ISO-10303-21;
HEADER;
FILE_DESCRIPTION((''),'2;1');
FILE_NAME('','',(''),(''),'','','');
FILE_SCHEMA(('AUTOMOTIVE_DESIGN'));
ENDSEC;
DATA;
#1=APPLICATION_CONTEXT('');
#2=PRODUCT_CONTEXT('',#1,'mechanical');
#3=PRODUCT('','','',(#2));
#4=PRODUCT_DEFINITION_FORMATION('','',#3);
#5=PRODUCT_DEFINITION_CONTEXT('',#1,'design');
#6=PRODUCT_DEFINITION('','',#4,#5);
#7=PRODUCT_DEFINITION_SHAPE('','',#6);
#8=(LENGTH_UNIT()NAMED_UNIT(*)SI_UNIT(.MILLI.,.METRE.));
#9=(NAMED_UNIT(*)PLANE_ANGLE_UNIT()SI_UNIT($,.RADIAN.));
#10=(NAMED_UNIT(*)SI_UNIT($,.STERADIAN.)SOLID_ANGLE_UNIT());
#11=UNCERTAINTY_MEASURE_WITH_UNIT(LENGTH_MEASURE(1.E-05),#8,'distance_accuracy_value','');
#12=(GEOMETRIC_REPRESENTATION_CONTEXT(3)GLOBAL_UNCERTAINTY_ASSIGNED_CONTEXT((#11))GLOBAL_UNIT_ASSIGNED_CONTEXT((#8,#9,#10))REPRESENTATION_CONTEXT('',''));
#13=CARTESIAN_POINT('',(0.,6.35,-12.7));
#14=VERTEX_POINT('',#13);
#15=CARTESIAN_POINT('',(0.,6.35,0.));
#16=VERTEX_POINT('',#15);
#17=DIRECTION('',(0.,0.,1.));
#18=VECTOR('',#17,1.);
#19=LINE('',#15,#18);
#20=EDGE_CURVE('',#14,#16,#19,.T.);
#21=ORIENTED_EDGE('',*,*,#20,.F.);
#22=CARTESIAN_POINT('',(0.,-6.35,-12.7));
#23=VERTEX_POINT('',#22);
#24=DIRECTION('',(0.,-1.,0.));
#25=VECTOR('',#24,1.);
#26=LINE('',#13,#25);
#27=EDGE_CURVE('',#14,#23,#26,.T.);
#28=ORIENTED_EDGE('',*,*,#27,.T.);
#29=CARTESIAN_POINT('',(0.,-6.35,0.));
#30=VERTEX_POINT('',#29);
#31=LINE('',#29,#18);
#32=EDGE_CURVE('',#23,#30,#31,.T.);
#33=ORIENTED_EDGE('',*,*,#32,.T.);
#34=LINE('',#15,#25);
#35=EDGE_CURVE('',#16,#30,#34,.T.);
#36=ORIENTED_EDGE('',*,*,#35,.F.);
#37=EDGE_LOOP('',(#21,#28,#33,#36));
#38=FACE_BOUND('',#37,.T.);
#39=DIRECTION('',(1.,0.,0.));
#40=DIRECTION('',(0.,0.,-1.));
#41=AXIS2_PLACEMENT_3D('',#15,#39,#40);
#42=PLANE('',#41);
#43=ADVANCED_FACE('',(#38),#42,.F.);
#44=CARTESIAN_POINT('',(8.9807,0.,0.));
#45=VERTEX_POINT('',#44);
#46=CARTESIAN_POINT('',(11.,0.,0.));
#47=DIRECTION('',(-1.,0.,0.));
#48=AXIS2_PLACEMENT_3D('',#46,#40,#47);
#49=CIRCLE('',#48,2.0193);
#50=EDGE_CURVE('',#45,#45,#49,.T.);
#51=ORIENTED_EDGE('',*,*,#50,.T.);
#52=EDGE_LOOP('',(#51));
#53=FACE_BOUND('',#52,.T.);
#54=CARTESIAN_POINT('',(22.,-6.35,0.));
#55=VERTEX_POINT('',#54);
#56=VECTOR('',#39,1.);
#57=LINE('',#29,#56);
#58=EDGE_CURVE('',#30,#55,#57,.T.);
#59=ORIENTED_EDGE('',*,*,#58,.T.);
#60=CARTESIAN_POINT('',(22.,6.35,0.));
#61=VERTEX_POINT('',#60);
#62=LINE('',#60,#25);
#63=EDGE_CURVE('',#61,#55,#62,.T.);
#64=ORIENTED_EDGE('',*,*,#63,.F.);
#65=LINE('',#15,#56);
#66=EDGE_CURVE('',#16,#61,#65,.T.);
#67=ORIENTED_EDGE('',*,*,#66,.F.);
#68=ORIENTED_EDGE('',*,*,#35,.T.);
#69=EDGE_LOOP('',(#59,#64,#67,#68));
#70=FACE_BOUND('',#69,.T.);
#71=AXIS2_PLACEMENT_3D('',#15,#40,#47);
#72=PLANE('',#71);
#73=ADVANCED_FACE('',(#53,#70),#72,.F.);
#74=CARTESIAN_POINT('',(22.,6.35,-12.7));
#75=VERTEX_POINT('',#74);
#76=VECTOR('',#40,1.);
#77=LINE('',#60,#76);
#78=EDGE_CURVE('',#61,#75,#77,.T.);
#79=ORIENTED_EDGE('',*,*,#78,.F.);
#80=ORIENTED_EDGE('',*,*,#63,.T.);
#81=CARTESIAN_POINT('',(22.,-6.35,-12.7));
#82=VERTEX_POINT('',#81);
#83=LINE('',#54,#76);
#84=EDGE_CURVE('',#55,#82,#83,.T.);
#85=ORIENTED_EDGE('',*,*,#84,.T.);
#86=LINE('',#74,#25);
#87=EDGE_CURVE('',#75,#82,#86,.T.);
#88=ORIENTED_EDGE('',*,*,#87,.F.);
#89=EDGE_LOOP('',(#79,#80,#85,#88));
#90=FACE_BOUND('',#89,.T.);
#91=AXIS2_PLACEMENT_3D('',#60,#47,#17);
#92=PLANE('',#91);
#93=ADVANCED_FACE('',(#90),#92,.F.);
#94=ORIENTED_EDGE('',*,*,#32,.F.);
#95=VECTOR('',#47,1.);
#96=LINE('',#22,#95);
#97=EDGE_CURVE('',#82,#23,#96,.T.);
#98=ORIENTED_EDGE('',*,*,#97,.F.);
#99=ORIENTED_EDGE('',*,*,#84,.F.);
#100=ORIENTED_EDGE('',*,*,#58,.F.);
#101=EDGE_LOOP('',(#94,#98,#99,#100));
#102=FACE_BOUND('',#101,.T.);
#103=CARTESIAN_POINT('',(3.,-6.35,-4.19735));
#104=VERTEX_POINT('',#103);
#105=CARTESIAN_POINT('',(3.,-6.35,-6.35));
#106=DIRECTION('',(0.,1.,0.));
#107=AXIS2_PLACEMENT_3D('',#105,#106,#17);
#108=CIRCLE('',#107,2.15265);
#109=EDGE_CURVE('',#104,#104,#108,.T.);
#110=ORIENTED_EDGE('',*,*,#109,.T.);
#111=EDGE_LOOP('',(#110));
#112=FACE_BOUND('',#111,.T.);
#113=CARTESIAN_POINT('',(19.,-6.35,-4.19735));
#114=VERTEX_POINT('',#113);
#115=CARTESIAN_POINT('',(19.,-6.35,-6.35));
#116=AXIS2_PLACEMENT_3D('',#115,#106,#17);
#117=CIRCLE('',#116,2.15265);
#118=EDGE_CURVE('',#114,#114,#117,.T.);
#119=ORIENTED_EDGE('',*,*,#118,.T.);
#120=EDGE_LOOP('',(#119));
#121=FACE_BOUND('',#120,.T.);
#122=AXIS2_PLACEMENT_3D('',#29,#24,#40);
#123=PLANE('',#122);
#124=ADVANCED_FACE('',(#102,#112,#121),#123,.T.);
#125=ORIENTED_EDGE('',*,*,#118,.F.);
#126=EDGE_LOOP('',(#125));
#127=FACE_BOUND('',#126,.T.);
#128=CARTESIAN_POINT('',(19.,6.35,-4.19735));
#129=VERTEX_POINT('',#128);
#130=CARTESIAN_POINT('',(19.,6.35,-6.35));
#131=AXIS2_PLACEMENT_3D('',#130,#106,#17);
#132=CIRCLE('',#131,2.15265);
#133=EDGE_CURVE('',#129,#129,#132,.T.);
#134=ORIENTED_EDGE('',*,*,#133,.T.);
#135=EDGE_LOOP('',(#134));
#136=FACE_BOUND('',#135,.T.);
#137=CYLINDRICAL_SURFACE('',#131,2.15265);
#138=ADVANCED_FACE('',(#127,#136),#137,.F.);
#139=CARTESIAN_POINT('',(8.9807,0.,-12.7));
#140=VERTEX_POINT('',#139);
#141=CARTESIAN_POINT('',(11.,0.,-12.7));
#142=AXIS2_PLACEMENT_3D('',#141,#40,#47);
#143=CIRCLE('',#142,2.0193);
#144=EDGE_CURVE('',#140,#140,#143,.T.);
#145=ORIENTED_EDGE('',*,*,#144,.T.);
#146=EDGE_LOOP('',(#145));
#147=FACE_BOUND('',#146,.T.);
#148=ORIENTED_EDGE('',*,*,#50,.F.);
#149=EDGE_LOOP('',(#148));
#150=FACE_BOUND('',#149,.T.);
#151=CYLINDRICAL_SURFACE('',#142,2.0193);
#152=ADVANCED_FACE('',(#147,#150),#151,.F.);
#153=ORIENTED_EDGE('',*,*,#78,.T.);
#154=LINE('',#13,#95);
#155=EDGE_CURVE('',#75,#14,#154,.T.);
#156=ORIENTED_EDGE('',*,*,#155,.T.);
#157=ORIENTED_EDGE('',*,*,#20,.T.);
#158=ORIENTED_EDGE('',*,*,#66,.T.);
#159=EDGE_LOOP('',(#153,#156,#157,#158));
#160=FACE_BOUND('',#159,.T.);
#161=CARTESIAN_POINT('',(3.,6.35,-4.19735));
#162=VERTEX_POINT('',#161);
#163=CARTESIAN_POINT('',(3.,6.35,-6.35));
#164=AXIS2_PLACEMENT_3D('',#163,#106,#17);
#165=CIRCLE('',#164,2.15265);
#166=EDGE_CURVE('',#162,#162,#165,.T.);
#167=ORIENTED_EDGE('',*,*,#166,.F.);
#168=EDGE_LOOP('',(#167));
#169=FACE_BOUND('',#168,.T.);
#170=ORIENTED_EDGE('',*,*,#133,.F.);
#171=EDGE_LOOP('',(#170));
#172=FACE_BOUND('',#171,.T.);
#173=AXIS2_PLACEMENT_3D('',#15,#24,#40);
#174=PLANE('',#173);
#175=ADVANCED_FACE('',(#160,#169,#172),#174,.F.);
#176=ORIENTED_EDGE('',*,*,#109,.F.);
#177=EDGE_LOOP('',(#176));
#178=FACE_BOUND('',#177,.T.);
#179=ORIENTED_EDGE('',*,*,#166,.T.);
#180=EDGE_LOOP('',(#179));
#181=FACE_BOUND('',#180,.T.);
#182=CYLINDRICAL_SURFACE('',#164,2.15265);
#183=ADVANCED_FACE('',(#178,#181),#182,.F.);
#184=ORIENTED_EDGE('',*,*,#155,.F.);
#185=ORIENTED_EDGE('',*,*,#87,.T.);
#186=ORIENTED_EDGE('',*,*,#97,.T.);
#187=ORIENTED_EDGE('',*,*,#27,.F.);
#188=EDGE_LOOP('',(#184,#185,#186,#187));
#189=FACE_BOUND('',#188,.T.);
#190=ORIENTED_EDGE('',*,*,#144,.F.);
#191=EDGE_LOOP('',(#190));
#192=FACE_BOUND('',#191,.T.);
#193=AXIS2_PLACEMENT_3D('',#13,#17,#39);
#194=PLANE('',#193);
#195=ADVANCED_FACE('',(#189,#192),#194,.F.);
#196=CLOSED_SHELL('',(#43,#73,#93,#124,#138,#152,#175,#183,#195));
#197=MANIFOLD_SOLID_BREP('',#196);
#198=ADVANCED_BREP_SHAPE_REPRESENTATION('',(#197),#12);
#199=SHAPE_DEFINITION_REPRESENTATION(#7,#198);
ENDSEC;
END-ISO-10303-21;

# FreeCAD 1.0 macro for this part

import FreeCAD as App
import Part
import Sketcher
from FreeCAD import Vector
Q = App.Units.Quantity


def add_polygon(sketch, points):
    """Adds a closed chain of lines whose ends are joined by coincident constraints."""
    first, n = sketch.GeometryCount, len(points)
    for a, b in zip(points, points[1:] + points[:1]):
        sketch.addGeometry(Part.LineSegment(App.Vector(*a, 0), App.Vector(*b, 0)), False)
    for i in range(n):
        sketch.addConstraint(Sketcher.Constraint("Coincident", first + i, 2, first + (i + 1) % n, 1))

doc = App.newDocument("Part")
params = doc.addObject("Spreadsheet::Sheet", "Params")
for row, (alias, value) in enumerate([
    ("sketch1_height", "0.5 in"),
    ("pad1_length", "0.5 in"),
    ("hole_diameter", "0.1695 in"),
    ("hole2_diameter", "0.1695 in"),
    ("sketch4_diameter", "0.159 in"),
    ("hole3_diameter", "0.159 in"),
], start=1):
    params.set(f"A{row}", alias)
    params.set(f"B{row}", "=" + value)
    params.setAlias(f"B{row}", alias)

body = doc.addObject("PartDesign::Body", "Body")

sketch1 = body.newObject("Sketcher::SketchObject", "Sketch")
sketch1.AttachmentSupport = (doc.getObject("XZ_Plane"), [""])
sketch1.MapMode = "FlatFace"
add_polygon(sketch1, [(0, -13), (0, 0), (22, 0), (22, -13)])
sketch1.addConstraint([
    Sketcher.Constraint("Vertical", 0),
    Sketcher.Constraint("Horizontal", 1),
    Sketcher.Constraint("Vertical", 2),
    Sketcher.Constraint("Horizontal", 3),
    Sketcher.Constraint("Coincident", 0, 2, -1, 1),
    Sketcher.Constraint("DistanceY", 0, 1, 0, 2, Q("0.5 in")),
    Sketcher.Constraint("DistanceX", 1, 1, 1, 2, 22.0),
])
sketch1.setExpression("Constraints[9]", "Params.sketch1_height")
pad1 = body.newObject("PartDesign::Pad", "Pad")
pad1.Profile = sketch1
pad1.setExpression("Length", "Params.pad1_length")
pad1.Midplane = True

sketch2 = body.newObject("Sketcher::SketchObject", "Sketch001")
sketch2.AttachmentSupport = (doc.getObject("XZ_Plane"), [""])
sketch2.MapMode = "FlatFace"
sketch2.AttachmentOffset = App.Placement(Vector(0, 0, -0.25 * 25.4), App.Rotation())
sketch2.addGeometry(Part.Circle(Vector(3, -6.3, 0), Vector(0, 0, 1), 2.2), False)
sketch2.addConstraint([
    Sketcher.Constraint("Diameter", 0, Q("0.1695 in")),
    Sketcher.Constraint("DistanceY", 0, 3, -1, 1, Q("0.25 in")),
    Sketcher.Constraint("DistanceX", -1, 1, 0, 3, 3.0),
])
doc.recompute()
hole = body.newObject("PartDesign::Hole", "Hole")
hole.Profile = sketch2
hole.ThreadType = "None"
hole.setExpression("Diameter", "Params.hole_diameter")
hole.DepthType = "ThroughAll"
hole.Reversed = True

sketch3 = body.newObject("Sketcher::SketchObject", "Sketch002")
sketch3.AttachmentSupport = (doc.getObject("XZ_Plane"), [""])
sketch3.MapMode = "FlatFace"
sketch3.AttachmentOffset = App.Placement(Vector(0, 0, -0.25 * 25.4), App.Rotation())
sketch3.addGeometry(Part.Circle(Vector(19, -6.3, 0), Vector(0, 0, 1), 2.2), False)
sketch3.addConstraint([
    Sketcher.Constraint("Diameter", 0, Q("0.1695 in")),
    Sketcher.Constraint("DistanceY", 0, 3, -1, 1, Q("0.25 in")),
    Sketcher.Constraint("DistanceX", -1, 1, 0, 3, 19.0),
])
doc.recompute()
hole2 = body.newObject("PartDesign::Hole", "Hole001")
hole2.Profile = sketch3
hole2.ThreadType = "None"
hole2.setExpression("Diameter", "Params.hole2_diameter")
hole2.DepthType = "ThroughAll"
hole2.Reversed = True

sketch4 = body.newObject("Sketcher::SketchObject", "Sketch003")
sketch4.AttachmentSupport = (doc.getObject("XY_Plane"), [""])
sketch4.MapMode = "FlatFace"
sketch4.AttachmentOffset = App.Placement(Vector(0, 0, -0.5 * 25.4), App.Rotation())
sketch4.addGeometry(Part.Circle(Vector(11, 0, 0), Vector(0, 0, 1), 2), False)
sketch4.addConstraint([
    Sketcher.Constraint("PointOnObject", 0, 3, -1),
    Sketcher.Constraint("Diameter", 0, Q("0.159 in")),
    Sketcher.Constraint("DistanceX", -1, 1, 0, 3, 11.0),
])
sketch4.setExpression("Constraints[1]", "Params.sketch4_diameter")
doc.recompute()
hole3 = body.newObject("PartDesign::Hole", "Hole002")
hole3.Profile = sketch4
hole3.ThreadType = "None"
hole3.setExpression("Diameter", "Params.hole3_diameter")
hole3.DepthType = "ThroughAll"
hole3.Reversed = True

doc.recompute()
